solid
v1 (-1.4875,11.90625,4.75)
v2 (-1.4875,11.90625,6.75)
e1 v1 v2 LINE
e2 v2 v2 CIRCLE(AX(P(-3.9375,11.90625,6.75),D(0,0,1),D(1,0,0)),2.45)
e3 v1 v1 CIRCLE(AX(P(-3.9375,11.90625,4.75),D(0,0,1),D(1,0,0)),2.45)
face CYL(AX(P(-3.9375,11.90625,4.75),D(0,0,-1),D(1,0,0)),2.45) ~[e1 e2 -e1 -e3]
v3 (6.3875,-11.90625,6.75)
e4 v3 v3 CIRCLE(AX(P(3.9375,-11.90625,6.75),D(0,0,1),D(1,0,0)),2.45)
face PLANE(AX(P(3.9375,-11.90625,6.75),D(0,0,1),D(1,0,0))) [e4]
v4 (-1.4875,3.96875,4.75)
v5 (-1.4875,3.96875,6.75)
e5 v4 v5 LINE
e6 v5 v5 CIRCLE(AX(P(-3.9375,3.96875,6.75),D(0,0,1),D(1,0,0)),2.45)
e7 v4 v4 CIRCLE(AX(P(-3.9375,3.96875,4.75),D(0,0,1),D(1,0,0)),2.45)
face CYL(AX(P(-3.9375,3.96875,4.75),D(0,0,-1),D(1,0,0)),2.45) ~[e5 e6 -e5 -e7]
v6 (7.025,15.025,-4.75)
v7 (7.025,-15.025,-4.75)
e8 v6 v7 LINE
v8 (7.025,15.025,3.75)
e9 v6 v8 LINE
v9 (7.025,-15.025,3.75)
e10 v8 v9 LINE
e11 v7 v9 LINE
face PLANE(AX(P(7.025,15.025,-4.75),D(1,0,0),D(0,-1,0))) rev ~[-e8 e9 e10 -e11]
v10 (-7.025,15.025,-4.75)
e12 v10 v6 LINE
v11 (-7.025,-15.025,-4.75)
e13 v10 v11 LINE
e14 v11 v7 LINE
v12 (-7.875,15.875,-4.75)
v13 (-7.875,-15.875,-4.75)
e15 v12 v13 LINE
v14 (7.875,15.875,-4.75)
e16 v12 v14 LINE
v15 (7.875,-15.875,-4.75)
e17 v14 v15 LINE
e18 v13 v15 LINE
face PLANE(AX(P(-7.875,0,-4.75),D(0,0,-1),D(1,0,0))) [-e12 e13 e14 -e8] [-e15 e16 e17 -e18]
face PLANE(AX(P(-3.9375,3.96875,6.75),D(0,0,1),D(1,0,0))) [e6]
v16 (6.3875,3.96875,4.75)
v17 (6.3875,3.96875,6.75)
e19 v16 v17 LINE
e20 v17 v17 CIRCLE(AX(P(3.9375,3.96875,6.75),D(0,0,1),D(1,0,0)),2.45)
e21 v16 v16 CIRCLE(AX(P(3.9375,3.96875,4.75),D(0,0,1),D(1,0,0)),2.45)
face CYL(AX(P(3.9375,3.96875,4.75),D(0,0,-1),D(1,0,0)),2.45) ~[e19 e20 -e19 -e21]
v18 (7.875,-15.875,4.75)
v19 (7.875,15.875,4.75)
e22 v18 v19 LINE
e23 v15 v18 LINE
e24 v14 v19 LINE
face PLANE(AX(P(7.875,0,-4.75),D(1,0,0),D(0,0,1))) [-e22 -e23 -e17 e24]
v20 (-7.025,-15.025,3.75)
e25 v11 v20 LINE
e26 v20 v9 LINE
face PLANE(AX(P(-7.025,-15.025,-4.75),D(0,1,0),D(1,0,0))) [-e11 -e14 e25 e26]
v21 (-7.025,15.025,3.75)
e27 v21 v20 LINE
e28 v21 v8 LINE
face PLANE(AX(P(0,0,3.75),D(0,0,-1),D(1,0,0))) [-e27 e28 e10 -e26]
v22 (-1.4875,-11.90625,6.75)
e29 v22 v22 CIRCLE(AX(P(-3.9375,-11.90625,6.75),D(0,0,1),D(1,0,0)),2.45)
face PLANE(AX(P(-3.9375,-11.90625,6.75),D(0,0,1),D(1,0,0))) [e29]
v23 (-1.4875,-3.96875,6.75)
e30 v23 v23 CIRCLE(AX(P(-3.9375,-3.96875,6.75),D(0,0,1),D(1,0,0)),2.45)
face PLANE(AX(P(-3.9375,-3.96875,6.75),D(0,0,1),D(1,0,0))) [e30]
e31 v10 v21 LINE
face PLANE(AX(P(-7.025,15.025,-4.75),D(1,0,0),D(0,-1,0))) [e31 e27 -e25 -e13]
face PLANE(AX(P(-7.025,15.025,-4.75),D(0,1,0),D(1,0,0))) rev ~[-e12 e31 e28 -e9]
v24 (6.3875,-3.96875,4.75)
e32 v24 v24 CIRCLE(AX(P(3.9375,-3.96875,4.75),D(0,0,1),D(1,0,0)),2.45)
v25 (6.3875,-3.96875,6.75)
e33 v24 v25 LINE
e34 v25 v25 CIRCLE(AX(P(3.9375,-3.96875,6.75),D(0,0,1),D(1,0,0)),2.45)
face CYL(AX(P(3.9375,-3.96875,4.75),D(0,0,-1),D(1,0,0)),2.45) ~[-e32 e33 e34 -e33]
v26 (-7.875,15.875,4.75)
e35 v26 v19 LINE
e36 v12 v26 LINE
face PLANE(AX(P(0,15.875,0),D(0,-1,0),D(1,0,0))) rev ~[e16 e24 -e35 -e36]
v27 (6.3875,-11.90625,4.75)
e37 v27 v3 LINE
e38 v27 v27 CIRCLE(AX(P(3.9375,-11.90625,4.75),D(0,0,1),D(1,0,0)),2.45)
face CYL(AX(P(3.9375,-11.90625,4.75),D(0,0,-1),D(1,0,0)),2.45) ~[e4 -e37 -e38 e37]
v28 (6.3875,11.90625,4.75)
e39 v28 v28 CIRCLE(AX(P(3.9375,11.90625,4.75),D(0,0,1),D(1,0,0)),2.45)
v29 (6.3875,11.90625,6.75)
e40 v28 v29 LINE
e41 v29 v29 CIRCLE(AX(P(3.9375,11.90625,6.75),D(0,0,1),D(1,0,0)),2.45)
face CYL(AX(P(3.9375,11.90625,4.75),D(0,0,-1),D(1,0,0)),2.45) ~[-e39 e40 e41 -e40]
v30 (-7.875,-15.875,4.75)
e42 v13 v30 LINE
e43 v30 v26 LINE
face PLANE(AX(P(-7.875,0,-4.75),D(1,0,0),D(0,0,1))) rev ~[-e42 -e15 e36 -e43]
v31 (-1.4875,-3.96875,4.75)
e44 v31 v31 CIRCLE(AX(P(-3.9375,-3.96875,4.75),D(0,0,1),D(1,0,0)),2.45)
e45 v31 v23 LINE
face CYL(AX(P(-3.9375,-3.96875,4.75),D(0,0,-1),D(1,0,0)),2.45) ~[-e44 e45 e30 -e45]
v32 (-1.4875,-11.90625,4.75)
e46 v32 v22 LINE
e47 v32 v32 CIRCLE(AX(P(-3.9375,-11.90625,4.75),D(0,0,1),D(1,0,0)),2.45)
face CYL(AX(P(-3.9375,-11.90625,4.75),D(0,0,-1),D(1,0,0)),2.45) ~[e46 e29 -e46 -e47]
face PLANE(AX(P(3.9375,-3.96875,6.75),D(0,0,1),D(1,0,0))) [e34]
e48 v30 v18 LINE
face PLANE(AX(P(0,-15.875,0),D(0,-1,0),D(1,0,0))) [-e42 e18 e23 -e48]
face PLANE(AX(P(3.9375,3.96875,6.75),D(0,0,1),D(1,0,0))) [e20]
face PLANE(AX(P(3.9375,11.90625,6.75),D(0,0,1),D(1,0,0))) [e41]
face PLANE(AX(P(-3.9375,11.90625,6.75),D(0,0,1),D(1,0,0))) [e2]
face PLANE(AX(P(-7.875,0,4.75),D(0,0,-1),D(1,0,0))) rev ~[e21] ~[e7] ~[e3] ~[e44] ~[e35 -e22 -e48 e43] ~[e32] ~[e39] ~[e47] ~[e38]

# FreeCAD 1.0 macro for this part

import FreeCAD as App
import Part
import Sketcher

V = App.Vector

doc = App.newDocument("Part")
body = doc.addObject("PartDesign::Body", "Body")

sketch1 = body.newObject("Sketcher::SketchObject", "Sketch")
sketch1.AttachmentSupport = (doc.getObject("XZ_Plane"), [""])
sketch1.MapMode = "FlatFace"
sketch1.addGeometry(Part.LineSegment(V(-8, 5, 0), V(-8, -5, 0)), False)
sketch1.addGeometry(Part.LineSegment(V(-8, -5, 0), V(8, -5, 0)), False)
sketch1.addGeometry(Part.LineSegment(V(8, -5, 0), V(8, 5, 0)), False)
sketch1.addGeometry(Part.LineSegment(V(8, 5, 0), V(-8, 5, 0)), False)
sketch1.addConstraint(Sketcher.Constraint("Coincident", 0, 2, 1, 1))
sketch1.addConstraint(Sketcher.Constraint("Coincident", 1, 2, 2, 1))
sketch1.addConstraint(Sketcher.Constraint("Coincident", 2, 2, 3, 1))
sketch1.addConstraint(Sketcher.Constraint("Coincident", 3, 2, 0, 1))
sketch1.addConstraint(Sketcher.Constraint("Vertical", 0))
sketch1.addConstraint(Sketcher.Constraint("Horizontal", 1))
sketch1.addConstraint(Sketcher.Constraint("Vertical", 2))
sketch1.addConstraint(Sketcher.Constraint("Horizontal", 3))
sketch1.addConstraint(Sketcher.Constraint("Symmetric", 0, 2, 2, 2, -1, 1))
sketch1.addConstraint(Sketcher.Constraint("DistanceY", 0, 2, 0, 1, 9.5))
sketch1.addConstraint(Sketcher.Constraint("DistanceX", 1, 1, 1, 2, 15.75))
pad1 = body.newObject("PartDesign::Pad", "Pad")
pad1.Profile = sketch1
pad1.Length = 31.75
pad1.Midplane = True

sketch2 = body.newObject("Sketcher::SketchObject", "Sketch001")
sketch2.AttachmentSupport = (doc.getObject("XY_Plane"), [""])
sketch2.MapMode = "FlatFace"
sketch2.AttachmentOffset = App.Placement(V(0, 0, 4.75), App.Rotation())
sketch2.addGeometry(Part.Circle(V(-3.9, 11.9, 0), V(0, 0, 1), 2.5), False)
sketch2.addGeometry(Part.Circle(V(3.9, 11.9, 0), V(0, 0, 1), 2.5), False)
sketch2.addGeometry(Part.Circle(V(3.9, 4, 0), V(0, 0, 1), 2.5), False)
sketch2.addGeometry(Part.Circle(V(-3.9, 4, 0), V(0, 0, 1), 2.5), False)
sketch2.addGeometry(Part.Circle(V(-3.9, -4, 0), V(0, 0, 1), 2.5), False)
sketch2.addGeometry(Part.Circle(V(3.9, -4, 0), V(0, 0, 1), 2.5), False)
sketch2.addGeometry(Part.Circle(V(-3.9, -11.9, 0), V(0, 0, 1), 2.5), False)
sketch2.addGeometry(Part.Circle(V(3.9, -11.9, 0), V(0, 0, 1), 2.5), False)
sketch2.addConstraint(Sketcher.Constraint("Equal", 0, 1))
sketch2.addConstraint(Sketcher.Constraint("Equal", 1, 2))
sketch2.addConstraint(Sketcher.Constraint("Equal", 2, 3))
sketch2.addConstraint(Sketcher.Constraint("Equal", 3, 4))
sketch2.addConstraint(Sketcher.Constraint("Equal", 4, 5))
sketch2.addConstraint(Sketcher.Constraint("Equal", 5, 6))
sketch2.addConstraint(Sketcher.Constraint("Equal", 6, 7))
sketch2.addConstraint(Sketcher.Constraint("Symmetric", 2, 3, 4, 3, -1, 1))
sketch2.addConstraint(Sketcher.Constraint("Symmetric", 3, 3, 5, 3, -1, 1))
sketch2.addConstraint(Sketcher.Constraint("Symmetric", 1, 3, 6, 3, -1, 1))
sketch2.addConstraint(Sketcher.Constraint("Symmetric", 0, 3, 7, 3, -1, 1))
sketch2.addConstraint(Sketcher.Constraint("Symmetric", 0, 3, 1, 3, -2))
sketch2.addConstraint(Sketcher.Constraint("Symmetric", 2, 3, 3, 3, -2))
sketch2.addConstraint(Sketcher.Constraint("Vertical", 1, 3, 2, 3))
sketch2.addConstraint(Sketcher.Constraint("Diameter", 0, 4.9))
sketch2.addConstraint(Sketcher.Constraint("DistanceX", 0, 3, 1, 3, 7.875))
sketch2.addConstraint(Sketcher.Constraint("DistanceY", 4, 3, 0, 3, 15.875))
sketch2.addConstraint(Sketcher.Constraint("DistanceY", 2, 3, 1, 3, 7.9375))
pad2 = body.newObject("PartDesign::Pad", "Pad001")
pad2.Profile = sketch2
pad2.Length = 2

sketch3 = body.newObject("Sketcher::SketchObject", "Sketch002")
sketch3.AttachmentSupport = (doc.getObject("XY_Plane"), [""])
sketch3.MapMode = "FlatFace"
sketch3.AttachmentOffset = App.Placement(V(0, 0, -4.75), App.Rotation())
sketch3.addGeometry(Part.LineSegment(V(-7, -15, 0), V(-7, 15, 0)), False)
sketch3.addGeometry(Part.LineSegment(V(-7, 15, 0), V(7, 15, 0)), False)
sketch3.addGeometry(Part.LineSegment(V(7, 15, 0), V(7, -15, 0)), False)
sketch3.addGeometry(Part.LineSegment(V(7, -15, 0), V(-7, -15, 0)), False)
sketch3.addConstraint(Sketcher.Constraint("Coincident", 0, 2, 1, 1))
sketch3.addConstraint(Sketcher.Constraint("Coincident", 1, 2, 2, 1))
sketch3.addConstraint(Sketcher.Constraint("Coincident", 2, 2, 3, 1))
sketch3.addConstraint(Sketcher.Constraint("Coincident", 3, 2, 0, 1))
sketch3.addConstraint(Sketcher.Constraint("Vertical", 0))
sketch3.addConstraint(Sketcher.Constraint("Horizontal", 1))
sketch3.addConstraint(Sketcher.Constraint("Vertical", 2))
sketch3.addConstraint(Sketcher.Constraint("Horizontal", 3))
sketch3.addConstraint(Sketcher.Constraint("Symmetric", 0, 2, 2, 2, -1, 1))
sketch3.addConstraint(Sketcher.Constraint("DistanceX", 1, 1, 1, 2, 14.05))
sketch3.addConstraint(Sketcher.Constraint("DistanceY", 0, 1, 0, 2, 30.05))
pocket1 = body.newObject("PartDesign::Pocket", "Pocket")
pocket1.Profile = sketch3
pocket1.Length = 8.5
pocket1.Reversed = True

doc.recompute()
